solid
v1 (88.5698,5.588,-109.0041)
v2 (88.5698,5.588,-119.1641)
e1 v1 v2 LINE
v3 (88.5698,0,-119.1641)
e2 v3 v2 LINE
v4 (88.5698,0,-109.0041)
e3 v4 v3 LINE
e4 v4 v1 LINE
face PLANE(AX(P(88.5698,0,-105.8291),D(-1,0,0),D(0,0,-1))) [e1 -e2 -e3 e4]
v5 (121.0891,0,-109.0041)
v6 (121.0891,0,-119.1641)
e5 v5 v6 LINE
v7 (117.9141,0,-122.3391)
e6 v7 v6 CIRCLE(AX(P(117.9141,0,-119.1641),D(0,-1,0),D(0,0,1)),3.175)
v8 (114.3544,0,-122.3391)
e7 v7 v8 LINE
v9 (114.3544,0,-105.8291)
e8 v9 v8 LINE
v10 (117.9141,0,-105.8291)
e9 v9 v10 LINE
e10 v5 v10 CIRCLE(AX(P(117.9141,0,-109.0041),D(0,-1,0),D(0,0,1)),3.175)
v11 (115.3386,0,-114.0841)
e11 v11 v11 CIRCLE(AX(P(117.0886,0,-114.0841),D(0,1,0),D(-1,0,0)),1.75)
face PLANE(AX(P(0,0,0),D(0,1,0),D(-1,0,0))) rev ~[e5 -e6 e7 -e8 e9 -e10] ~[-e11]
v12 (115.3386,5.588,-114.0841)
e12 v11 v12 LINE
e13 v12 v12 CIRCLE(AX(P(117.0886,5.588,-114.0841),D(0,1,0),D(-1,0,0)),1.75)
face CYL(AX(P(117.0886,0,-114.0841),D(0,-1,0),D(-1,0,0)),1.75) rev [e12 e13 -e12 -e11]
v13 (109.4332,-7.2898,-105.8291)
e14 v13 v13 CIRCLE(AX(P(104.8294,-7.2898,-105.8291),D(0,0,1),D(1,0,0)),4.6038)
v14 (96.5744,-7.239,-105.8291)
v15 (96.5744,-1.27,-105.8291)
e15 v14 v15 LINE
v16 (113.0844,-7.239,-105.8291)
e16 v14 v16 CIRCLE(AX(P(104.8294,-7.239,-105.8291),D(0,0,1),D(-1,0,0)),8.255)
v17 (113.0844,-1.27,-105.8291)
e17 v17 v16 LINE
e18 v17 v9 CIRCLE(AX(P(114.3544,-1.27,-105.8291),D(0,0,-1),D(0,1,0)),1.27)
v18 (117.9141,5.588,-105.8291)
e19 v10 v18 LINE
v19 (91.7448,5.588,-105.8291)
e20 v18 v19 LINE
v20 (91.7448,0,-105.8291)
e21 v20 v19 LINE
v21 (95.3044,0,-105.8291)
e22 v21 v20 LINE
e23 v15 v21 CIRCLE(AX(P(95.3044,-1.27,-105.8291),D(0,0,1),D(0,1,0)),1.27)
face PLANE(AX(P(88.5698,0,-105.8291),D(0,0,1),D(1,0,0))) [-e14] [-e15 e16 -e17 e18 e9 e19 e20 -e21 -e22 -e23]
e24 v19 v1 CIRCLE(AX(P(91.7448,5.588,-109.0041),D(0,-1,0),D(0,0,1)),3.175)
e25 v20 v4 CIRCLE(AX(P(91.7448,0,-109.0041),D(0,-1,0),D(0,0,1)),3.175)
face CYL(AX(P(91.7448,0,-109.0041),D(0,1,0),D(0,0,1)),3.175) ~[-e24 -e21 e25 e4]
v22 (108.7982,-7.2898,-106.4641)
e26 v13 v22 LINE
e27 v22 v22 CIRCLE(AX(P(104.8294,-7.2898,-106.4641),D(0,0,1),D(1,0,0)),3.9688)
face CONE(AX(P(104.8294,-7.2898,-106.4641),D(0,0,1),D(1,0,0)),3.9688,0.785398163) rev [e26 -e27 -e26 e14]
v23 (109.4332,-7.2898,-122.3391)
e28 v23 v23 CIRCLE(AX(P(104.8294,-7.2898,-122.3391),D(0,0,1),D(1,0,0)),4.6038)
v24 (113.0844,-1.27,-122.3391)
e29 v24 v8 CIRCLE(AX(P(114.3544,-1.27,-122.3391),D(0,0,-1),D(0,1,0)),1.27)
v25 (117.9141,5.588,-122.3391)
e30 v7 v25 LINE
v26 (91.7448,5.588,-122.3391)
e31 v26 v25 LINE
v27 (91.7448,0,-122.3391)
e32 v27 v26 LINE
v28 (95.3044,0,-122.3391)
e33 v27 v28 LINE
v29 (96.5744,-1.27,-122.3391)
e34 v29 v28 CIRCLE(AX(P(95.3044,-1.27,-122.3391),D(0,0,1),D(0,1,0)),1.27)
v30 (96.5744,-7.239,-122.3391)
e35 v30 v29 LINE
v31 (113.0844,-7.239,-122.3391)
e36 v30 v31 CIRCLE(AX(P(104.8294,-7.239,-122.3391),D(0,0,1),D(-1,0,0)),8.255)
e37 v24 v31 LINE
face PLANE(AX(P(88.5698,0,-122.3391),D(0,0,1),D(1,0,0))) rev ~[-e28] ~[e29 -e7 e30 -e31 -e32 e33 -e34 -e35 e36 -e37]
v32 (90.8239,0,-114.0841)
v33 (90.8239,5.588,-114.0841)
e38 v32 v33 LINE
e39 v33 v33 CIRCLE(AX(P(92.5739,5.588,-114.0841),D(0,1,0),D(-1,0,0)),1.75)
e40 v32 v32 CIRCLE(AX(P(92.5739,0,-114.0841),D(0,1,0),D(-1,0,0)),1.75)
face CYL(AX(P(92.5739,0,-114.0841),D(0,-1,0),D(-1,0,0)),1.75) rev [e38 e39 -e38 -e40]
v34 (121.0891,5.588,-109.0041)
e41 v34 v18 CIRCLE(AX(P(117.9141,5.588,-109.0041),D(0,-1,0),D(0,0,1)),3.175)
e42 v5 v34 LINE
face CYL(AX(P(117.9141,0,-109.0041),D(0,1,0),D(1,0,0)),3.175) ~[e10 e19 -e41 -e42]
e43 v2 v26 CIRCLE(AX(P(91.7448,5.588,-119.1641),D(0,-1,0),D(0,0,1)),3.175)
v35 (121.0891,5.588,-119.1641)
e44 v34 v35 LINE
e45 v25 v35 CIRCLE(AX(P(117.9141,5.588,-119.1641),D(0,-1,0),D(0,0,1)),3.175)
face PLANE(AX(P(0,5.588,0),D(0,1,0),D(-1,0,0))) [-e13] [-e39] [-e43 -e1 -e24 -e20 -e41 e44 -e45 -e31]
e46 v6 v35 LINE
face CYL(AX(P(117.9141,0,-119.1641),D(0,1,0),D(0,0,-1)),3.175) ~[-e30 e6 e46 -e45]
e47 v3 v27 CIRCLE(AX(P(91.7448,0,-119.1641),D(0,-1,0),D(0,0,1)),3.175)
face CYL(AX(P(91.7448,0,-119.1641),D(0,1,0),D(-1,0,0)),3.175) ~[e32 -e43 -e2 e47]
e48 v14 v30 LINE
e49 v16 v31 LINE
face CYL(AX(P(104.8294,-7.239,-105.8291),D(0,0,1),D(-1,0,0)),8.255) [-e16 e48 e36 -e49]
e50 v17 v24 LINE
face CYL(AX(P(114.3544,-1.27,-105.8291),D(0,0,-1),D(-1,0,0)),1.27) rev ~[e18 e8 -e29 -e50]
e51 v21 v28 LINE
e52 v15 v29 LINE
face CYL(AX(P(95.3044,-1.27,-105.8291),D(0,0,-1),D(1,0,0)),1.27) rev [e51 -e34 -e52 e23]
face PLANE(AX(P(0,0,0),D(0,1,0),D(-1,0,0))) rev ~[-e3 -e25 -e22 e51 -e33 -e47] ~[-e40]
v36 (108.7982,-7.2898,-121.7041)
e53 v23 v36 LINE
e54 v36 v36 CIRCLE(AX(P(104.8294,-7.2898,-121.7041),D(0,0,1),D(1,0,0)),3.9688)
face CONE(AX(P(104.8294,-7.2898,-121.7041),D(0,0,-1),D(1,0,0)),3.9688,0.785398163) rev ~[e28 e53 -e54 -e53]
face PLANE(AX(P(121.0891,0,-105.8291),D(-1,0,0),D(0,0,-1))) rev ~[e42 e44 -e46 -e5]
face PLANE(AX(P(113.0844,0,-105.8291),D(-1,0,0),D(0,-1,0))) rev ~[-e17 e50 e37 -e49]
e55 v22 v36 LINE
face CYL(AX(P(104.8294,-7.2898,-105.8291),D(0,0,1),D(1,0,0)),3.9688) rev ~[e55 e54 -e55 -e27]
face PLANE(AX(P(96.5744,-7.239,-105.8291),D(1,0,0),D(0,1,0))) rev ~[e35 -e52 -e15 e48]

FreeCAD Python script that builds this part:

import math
import FreeCAD as App
import Part
import Sketcher
from FreeCAD import Vector
Q = App.Units.Quantity


def edges_at(feature, points):
    """Names of the edges that pass closest to the given points."""
    edges = feature.Shape.Edges
    near = lambda p: min(range(len(edges)), key=lambda i: edges[i].distToShape(Part.Vertex(*p))[0])
    return sorted({f"Edge{near(p) + 1}" for p in points})


def add_polygon(sketch, points):
    """Adds a closed chain of lines whose ends are joined by coincident constraints."""
    first, n = sketch.GeometryCount, len(points)
    for a, b in zip(points, points[1:] + points[:1]):
        sketch.addGeometry(Part.LineSegment(App.Vector(*a, 0), App.Vector(*b, 0)), False)
    for i in range(n):
        sketch.addConstraint(Sketcher.Constraint("Coincident", first + i, 2, first + (i + 1) % n, 1))

doc = App.newDocument("Part")
body = doc.addObject("PartDesign::Body", "Body")

# Sketch on XZ plane
sketch1 = body.newObject("Sketcher::SketchObject", "Sketch")
sketch1.AttachmentSupport = (doc.getObject("XZ_Plane"), [""])
sketch1.MapMode = "FlatFace"
add_polygon(sketch1, [(88.5698, -105.8291), (121.0891, -105.8291), (121.0891, -122.3391), (88.5698, -122.3391)])  # lines 0-3
sketch1.addGeometry(Part.Circle(Vector(117.0886, -114.0841, 0), Vector(0, 0, 1), 1.75), False)  # 4
sketch1.addGeometry(Part.Circle(Vector(92.5739, -114.0841, 0), Vector(0, 0, 1), 1.75), False)  # 5
sketch1.addConstraint([
    Sketcher.Constraint("Horizontal", 0),
    Sketcher.Constraint("Vertical", 1),
    Sketcher.Constraint("Horizontal", 2),
    Sketcher.Constraint("Vertical", 3),
    Sketcher.Constraint("Equal", 4, 5),
    Sketcher.Constraint("Horizontal", 4, 3, 5, 3),
    Sketcher.Constraint("Diameter", 4, Q("0.1378 in")),
    Sketcher.Constraint("DistanceY", 1, 2, 1, 1, Q("0.65 in")),
    Sketcher.Constraint("DistanceX", -1, 1, 2, 2, Q("3.487 in")),
    Sketcher.Constraint("DistanceY", 4, 3, 0, 2, Q("0.325 in")),
    Sketcher.Constraint("DistanceX", 0, 1, 0, 2, Q("32.5193 mm")),
    Sketcher.Constraint("DistanceY", 4, 3, -1, 1, Q("4.4915 in")),
    Sketcher.Constraint("DistanceX", 4, 3, 0, 2, Q("0.1575 in")),
    Sketcher.Constraint("DistanceX", -1, 1, 5, 3, Q("92.574 mm")),
])
pad1 = body.newObject("PartDesign::Pad", "Pad")
pad1.Profile = sketch1
pad1.Length = Q("0.22 in")
pad1.Reversed = True
doc.recompute()

fillet = body.newObject("PartDesign::Fillet", "Fillet")
fillet.Base = (pad1, edges_at(pad1, [
    (88.57, 2.794, -122.339),
    (88.57, 2.794, -105.829),
    (121.089, 2.794, -122.339),
    (121.089, 2.794, -105.829),
]))
fillet.Radius = Q("0.125 in")

# Sketch on XY plane
sketch2 = body.newObject("Sketcher::SketchObject", "Sketch001")
sketch2.AttachmentSupport = (doc.getObject("XY_Plane"), [""])
sketch2.MapMode = "FlatFace"
sketch2.AttachmentOffset = App.Placement(Vector(0, 0, -4.1665 * 25.4), App.Rotation())
sketch2.addGeometry([
    Part.LineSegment(Vector(96.5744, 0, 0), Vector(96.5744, -7.239, 0)),  # 0
    Part.ArcOfCircle(Part.Circle(Vector(104.8294, -7.239, 0), Vector(0, 0, 1), 8.255), math.radians(180), math.radians(360)),  # 1
    Part.LineSegment(Vector(113.0844, -7.239, 0), Vector(113.0844, 0, 0)),  # 2
    Part.LineSegment(Vector(113.0844, 0, 0), Vector(96.5744, 0, 0)),  # 3
    Part.Circle(Vector(104.8294, -7.2898, 0), Vector(0, 0, 1), 3.9688),  # 4
], False)
sketch2.addConstraint([
    Sketcher.Constraint("Tangent", 0, 2, 1, 1),
    Sketcher.Constraint("Tangent", 1, 2, 2, 1),
    Sketcher.Constraint("Coincident", 2, 2, 3, 1),
    Sketcher.Constraint("Coincident", 3, 2, 0, 1),
    Sketcher.Constraint("Vertical", 0),
    Sketcher.Constraint("Vertical", 2),
    Sketcher.Constraint("Horizontal", 3),
    Sketcher.Constraint("PointOnObject", 2, 2, -1),
    Sketcher.Constraint("Vertical", 1, 3, 4, 3),
    Sketcher.Constraint("Diameter", 4, Q("0.3125 in")),
    Sketcher.Constraint("Radius", 1, Q("0.325 in")),
    Sketcher.Constraint("DistanceY", 0, 2, 0, 1, Q("0.285 in")),
    Sketcher.Constraint("DistanceY", 4, 3, -1, 1, Q("0.287 in")),
    Sketcher.Constraint("DistanceX", -1, 1, 1, 3, Q("104.8294 mm")),
])
pad2 = body.newObject("PartDesign::Pad", "Pad001")
pad2.Profile = sketch2
pad2.Length = Q("0.65 in")
pad2.Reversed = True
doc.recompute()

fillet2 = body.newObject("PartDesign::Fillet", "Fillet001")
fillet2.Base = (pad2, edges_at(pad2, [(96.574, 0, -114.084), (113.084, 0, -114.084)]))
fillet2.Radius = Q("0.05 in")
doc.recompute()

chamfer = body.newObject("PartDesign::Chamfer", "Chamfer")
chamfer.Base = (fillet2, edges_at(fillet2, [(100.861, -7.29, -105.829), (100.861, -7.29, -122.339)]))
chamfer.Size = Q("0.025 in")

doc.recompute()
